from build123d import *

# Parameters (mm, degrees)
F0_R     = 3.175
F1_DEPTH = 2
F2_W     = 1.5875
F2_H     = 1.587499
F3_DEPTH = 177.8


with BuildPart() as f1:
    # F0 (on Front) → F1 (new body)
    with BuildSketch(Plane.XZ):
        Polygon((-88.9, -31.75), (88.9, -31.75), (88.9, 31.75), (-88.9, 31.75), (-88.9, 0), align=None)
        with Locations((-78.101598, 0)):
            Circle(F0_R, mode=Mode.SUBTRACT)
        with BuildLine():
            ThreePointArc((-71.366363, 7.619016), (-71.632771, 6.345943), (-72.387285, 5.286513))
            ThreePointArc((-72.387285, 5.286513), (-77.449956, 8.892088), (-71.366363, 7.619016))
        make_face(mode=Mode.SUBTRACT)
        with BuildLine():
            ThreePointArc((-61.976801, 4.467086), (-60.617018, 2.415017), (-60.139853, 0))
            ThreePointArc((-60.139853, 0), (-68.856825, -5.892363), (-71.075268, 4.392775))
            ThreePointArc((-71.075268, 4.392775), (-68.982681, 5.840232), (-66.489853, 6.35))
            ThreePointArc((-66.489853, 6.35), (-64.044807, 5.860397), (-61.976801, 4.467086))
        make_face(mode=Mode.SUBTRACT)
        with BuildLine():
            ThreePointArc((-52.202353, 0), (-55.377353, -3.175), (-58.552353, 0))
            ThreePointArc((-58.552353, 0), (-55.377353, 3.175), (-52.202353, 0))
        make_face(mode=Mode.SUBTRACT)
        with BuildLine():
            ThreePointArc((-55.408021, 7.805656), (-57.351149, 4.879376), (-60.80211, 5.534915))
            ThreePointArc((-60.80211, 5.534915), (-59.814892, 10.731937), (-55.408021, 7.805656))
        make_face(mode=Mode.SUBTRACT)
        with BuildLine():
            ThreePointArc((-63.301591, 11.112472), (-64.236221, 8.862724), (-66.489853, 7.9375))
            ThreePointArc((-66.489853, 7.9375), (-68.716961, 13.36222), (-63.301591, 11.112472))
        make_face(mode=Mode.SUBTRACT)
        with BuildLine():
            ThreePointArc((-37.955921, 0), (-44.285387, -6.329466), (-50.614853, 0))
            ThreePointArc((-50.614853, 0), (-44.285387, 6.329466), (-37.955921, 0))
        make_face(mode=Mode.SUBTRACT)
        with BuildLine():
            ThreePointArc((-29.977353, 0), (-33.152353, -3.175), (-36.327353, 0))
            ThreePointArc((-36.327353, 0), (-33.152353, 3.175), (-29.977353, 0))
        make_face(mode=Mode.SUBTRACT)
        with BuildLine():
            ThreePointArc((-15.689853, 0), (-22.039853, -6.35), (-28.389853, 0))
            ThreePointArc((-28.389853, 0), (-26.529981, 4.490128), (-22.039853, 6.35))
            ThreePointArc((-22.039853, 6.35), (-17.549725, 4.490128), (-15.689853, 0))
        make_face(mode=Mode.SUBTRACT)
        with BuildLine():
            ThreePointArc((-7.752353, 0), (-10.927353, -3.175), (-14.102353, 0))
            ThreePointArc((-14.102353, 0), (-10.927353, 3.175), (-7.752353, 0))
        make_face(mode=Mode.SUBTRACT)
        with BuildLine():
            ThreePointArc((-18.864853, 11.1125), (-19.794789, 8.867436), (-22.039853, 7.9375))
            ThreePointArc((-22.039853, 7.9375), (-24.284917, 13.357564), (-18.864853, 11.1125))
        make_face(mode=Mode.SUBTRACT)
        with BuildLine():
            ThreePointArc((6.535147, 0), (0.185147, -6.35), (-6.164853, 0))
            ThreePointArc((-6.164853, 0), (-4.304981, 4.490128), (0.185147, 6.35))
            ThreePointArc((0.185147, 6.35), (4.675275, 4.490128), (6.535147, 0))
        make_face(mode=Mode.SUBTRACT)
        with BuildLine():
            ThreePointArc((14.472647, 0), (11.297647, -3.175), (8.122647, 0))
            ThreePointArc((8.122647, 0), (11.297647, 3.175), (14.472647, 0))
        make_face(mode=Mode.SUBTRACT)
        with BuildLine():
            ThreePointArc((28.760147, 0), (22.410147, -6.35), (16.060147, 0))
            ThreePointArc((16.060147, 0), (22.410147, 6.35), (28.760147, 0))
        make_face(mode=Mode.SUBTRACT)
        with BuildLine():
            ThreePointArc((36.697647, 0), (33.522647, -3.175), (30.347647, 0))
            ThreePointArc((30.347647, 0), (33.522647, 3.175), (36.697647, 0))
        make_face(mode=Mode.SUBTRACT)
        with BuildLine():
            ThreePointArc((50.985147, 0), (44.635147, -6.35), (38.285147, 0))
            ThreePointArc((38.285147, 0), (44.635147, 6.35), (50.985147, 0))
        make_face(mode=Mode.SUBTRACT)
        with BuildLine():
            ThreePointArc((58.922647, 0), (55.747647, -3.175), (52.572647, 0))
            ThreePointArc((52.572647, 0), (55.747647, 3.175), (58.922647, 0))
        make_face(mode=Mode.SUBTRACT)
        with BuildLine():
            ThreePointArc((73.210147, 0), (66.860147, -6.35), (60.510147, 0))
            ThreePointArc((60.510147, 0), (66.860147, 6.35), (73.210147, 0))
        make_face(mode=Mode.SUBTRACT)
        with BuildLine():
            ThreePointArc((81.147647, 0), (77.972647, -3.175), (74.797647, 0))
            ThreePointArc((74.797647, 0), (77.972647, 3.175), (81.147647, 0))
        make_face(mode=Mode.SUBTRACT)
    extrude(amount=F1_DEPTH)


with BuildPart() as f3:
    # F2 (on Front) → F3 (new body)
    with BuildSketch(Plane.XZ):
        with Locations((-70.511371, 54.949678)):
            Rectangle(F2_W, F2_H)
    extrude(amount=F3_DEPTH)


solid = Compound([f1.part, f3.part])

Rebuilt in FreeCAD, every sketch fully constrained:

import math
import FreeCAD as App
import Part
import Sketcher
from FreeCAD import Vector
Q = App.Units.Quantity


def add_polygon(sketch, points):
    """Adds a closed chain of lines whose ends are joined by coincident constraints."""
    first, n = sketch.GeometryCount, len(points)
    for a, b in zip(points, points[1:] + points[:1]):
        sketch.addGeometry(Part.LineSegment(App.Vector(*a, 0), App.Vector(*b, 0)), False)
    for i in range(n):
        sketch.addConstraint(Sketcher.Constraint("Coincident", first + i, 2, first + (i + 1) % n, 1))

doc = App.newDocument("Part")
body = doc.addObject("PartDesign::Body", "Body")

# Sketch on XZ plane
sketch1 = doc.addObject("Sketcher::SketchObject", "Sketch")
body.addObject(sketch1)
sketch1.AttachmentSupport = (doc.XZ_Plane, [""])
sketch1.MapMode = "FlatFace"
add_polygon(sketch1, [(-88.9, -31.75), (88.9, -31.75), (88.9, 31.75), (-88.9, 31.75)])  # lines 0-3
sketch1.addGeometry(Part.Circle(Vector(-78.101598, 0, 0), Vector(0, 0, 1), 3.175), False)  # 4
sketch1.addGeometry(Part.ArcOfCircle(Part.Circle(Vector(-66.489851, 0.000005, 0), Vector(0, 0, 1), 6.349995), math.radians(44.706705), math.radians(90.000014)), False)  # 5
sketch1.addGeometry(Part.ArcOfCircle(Part.Circle(Vector(-66.489853, 0, 0), Vector(0, 0, 1), 6.35), math.radians(0.000003), math.radians(44.706731)), False)  # 6
sketch1.addGeometry(Part.ArcOfCircle(Part.Circle(Vector(-66.489853, 0, 0), Vector(0, 0, 1), 6.35), math.radians(136.229176), math.radians(359.999998)), False)  # 7
sketch1.addGeometry(Part.ArcOfCircle(Part.Circle(Vector(-66.489853, 0, 0), Vector(0, 0, 1), 6.35), math.radians(89.999998), math.radians(136.229172)), False)  # 8
sketch1.addGeometry(Part.Circle(Vector(-55.377353, 0, 0), Vector(0, 0, 1), 3.175), False)  # 9
sketch1.addGeometry(Part.Circle(Vector(-44.285387, 0, 0), Vector(0, 0, 1), 6.329466), False)  # 10
sketch1.addGeometry(Part.Circle(Vector(-33.152353, 0, 0), Vector(0, 0, 1), 3.175), False)  # 11
sketch1.addGeometry(Part.ArcOfCircle(Part.Circle(Vector(-22.039853, 0, 0), Vector(0, 0, 1), 6.35), math.radians(0.000002), math.radians(89.999998)), False)  # 12
sketch1.addGeometry(Part.ArcOfCircle(Part.Circle(Vector(-22.039853, 0, 0), Vector(0, 0, 1), 6.35), math.radians(180), math.radians(360)), False)  # 13
sketch1.addGeometry(Part.ArcOfCircle(Part.Circle(Vector(-22.039853, 0, 0), Vector(0, 0, 1), 6.35), math.radians(90.000002), math.radians(179.999998)), False)  # 14
sketch1.addGeometry(Part.Circle(Vector(-10.927353, 0, 0), Vector(0, 0, 1), 3.175), False)  # 15
sketch1.addGeometry(Part.ArcOfCircle(Part.Circle(Vector(0.185147, 0, 0), Vector(0, 0, 1), 6.35), math.radians(0.000002), math.radians(89.999998)), False)  # 16
sketch1.addGeometry(Part.ArcOfCircle(Part.Circle(Vector(0.185147, 0, 0), Vector(0, 0, 1), 6.35), math.radians(180), math.radians(360)), False)  # 17
sketch1.addGeometry(Part.ArcOfCircle(Part.Circle(Vector(0.185147, 0, 0), Vector(0, 0, 1), 6.35), math.radians(90.000002), math.radians(179.999998)), False)  # 18
sketch1.addGeometry(Part.Circle(Vector(11.297647, 0, 0), Vector(0, 0, 1), 3.175), False)  # 19
sketch1.addGeometry(Part.Circle(Vector(22.410147, 0, 0), Vector(0, 0, 1), 6.35), False)  # 20
sketch1.addGeometry(Part.Circle(Vector(33.522647, 0, 0), Vector(0, 0, 1), 3.175), False)  # 21
sketch1.addGeometry(Part.Circle(Vector(44.635147, 0, 0), Vector(0, 0, 1), 6.35), False)  # 22
sketch1.addGeometry(Part.Circle(Vector(55.747647, 0, 0), Vector(0, 0, 1), 3.175), False)  # 23
sketch1.addGeometry(Part.Circle(Vector(66.860147, 0, 0), Vector(0, 0, 1), 6.35), False)  # 24
sketch1.addGeometry(Part.Circle(Vector(77.972647, 0, 0), Vector(0, 0, 1), 3.175), False)  # 25
sketch1.addGeometry(Part.ArcOfCircle(Part.Circle(Vector(-74.541363, 7.619017, 0), Vector(0, 0, 1), 3.175), math.radians(-0.00001), math.radians(312.72262)), False)  # 26
sketch1.addGeometry(Part.ArcOfCircle(Part.Circle(Vector(-74.541365, 7.619018, 0), Vector(0, 0, 1), 3.175002), math.radians(-47.277363), math.radians(-0.000027)), False)  # 27
sketch1.addGeometry(Part.ArcOfCircle(Part.Circle(Vector(-58.583021, 7.805657, 0), Vector(0, 0, 1), 3.175), math.radians(-0.00001), math.radians(225.659119)), False)  # 28
sketch1.addGeometry(Part.ArcOfCircle(Part.Circle(Vector(-58.583021, 7.805656, 0), Vector(0, 0, 1), 3.175), math.radians(-134.34089), math.radians(-0.000001)), False)  # 29
sketch1.addGeometry(Part.ArcOfCircle(Part.Circle(Vector(-66.476591, 11.112472, 0), Vector(0, 0, 1), 3.175), math.radians(-0.000002), math.radians(269.760671)), False)  # 30
sketch1.addGeometry(Part.ArcOfCircle(Part.Circle(Vector(-66.476591, 11.112472, 0), Vector(0, 0, 1), 3.175), math.radians(-90.239327), math.radians(-0.000004)), False)  # 31
sketch1.addGeometry(Part.ArcOfCircle(Part.Circle(Vector(-22.039853, 11.1125, 0), Vector(0, 0, 1), 3.175), math.radians(0), math.radians(270)), False)  # 32
sketch1.addGeometry(Part.ArcOfCircle(Part.Circle(Vector(-22.039853, 11.1125, 0), Vector(0, 0, 1), 3.175), math.radians(-89.999998), math.radians(-0.000002)), False)  # 33
sketch1.addConstraint(Sketcher.Constraint("Tangent", 5, 1, 6, 2))
sketch1.addConstraint(Sketcher.Constraint("Tangent", 6, 1, 7, 2))
sketch1.addConstraint(Sketcher.Constraint("Tangent", 7, 1, 8, 2))
sketch1.addConstraint(Sketcher.Constraint("Tangent", 8, 1, 5, 2))
sketch1.addConstraint(Sketcher.Constraint("Tangent", 12, 1, 13, 2))
sketch1.addConstraint(Sketcher.Constraint("Tangent", 13, 1, 14, 2))
sketch1.addConstraint(Sketcher.Constraint("Tangent", 14, 1, 12, 2))
sketch1.addConstraint(Sketcher.Constraint("Tangent", 16, 1, 17, 2))
sketch1.addConstraint(Sketcher.Constraint("Tangent", 17, 1, 18, 2))
sketch1.addConstraint(Sketcher.Constraint("Tangent", 18, 1, 16, 2))
sketch1.addConstraint(Sketcher.Constraint("Tangent", 26, 1, 27, 2))
sketch1.addConstraint(Sketcher.Constraint("Coincident", 27, 1, 26, 2))
sketch1.addConstraint(Sketcher.Constraint("Tangent", 28, 1, 29, 2))
sketch1.addConstraint(Sketcher.Constraint("Coincident", 29, 1, 28, 2))
sketch1.addConstraint(Sketcher.Constraint("Tangent", 30, 1, 31, 2))
sketch1.addConstraint(Sketcher.Constraint("Coincident", 31, 1, 30, 2))
sketch1.addConstraint(Sketcher.Constraint("Tangent", 32, 1, 33, 2))
sketch1.addConstraint(Sketcher.Constraint("Coincident", 33, 1, 32, 2))
sketch1.addConstraint(Sketcher.Constraint("Horizontal", 0))
sketch1.addConstraint(Sketcher.Constraint("Vertical", 1))
sketch1.addConstraint(Sketcher.Constraint("Horizontal", 2))
sketch1.addConstraint(Sketcher.Constraint("Vertical", 3))
sketch1.addConstraint(Sketcher.Constraint("Equal", 6, 7))
sketch1.addConstraint(Sketcher.Constraint("Equal", 4, 9))
sketch1.addConstraint(Sketcher.Constraint("Equal", 9, 11))
sketch1.addConstraint(Sketcher.Constraint("Equal", 8, 12))
sketch1.addConstraint(Sketcher.Constraint("Equal", 11, 15))
sketch1.addConstraint(Sketcher.Constraint("Equal", 14, 16))
sketch1.addConstraint(Sketcher.Constraint("Equal", 15, 19))
sketch1.addConstraint(Sketcher.Constraint("Equal", 18, 20))
sketch1.addConstraint(Sketcher.Constraint("Equal", 19, 21))
sketch1.addConstraint(Sketcher.Constraint("Equal", 20, 22))
sketch1.addConstraint(Sketcher.Constraint("Equal", 21, 23))
sketch1.addConstraint(Sketcher.Constraint("Equal", 22, 24))
sketch1.addConstraint(Sketcher.Constraint("Equal", 23, 25))
sketch1.addConstraint(Sketcher.Constraint("Equal", 25, 26))
sketch1.addConstraint(Sketcher.Constraint("Equal", 26, 28))
sketch1.addConstraint(Sketcher.Constraint("Equal", 29, 30))
sketch1.addConstraint(Sketcher.Constraint("Equal", 31, 32))
sketch1.addConstraint(Sketcher.Constraint("Symmetric", 0, 2, 2, 2, -1, 1))
sketch1.addConstraint(Sketcher.Constraint("PointOnObject", 4, 3, -1))
sketch1.addConstraint(Sketcher.Constraint("PointOnObject", 6, 3, -1))
sketch1.addConstraint(Sketcher.Constraint("PointOnObject", 9, 3, -1))
sketch1.addConstraint(Sketcher.Constraint("PointOnObject", 10, 3, -1))
sketch1.addConstraint(Sketcher.Constraint("PointOnObject", 11, 3, -1))
sketch1.addConstraint(Sketcher.Constraint("PointOnObject", 12, 3, -1))
sketch1.addConstraint(Sketcher.Constraint("PointOnObject", 15, 3, -1))
sketch1.addConstraint(Sketcher.Constraint("PointOnObject", 16, 3, -1))
sketch1.addConstraint(Sketcher.Constraint("PointOnObject", 19, 3, -1))
sketch1.addConstraint(Sketcher.Constraint("PointOnObject", 20, 3, -1))
sketch1.addConstraint(Sketcher.Constraint("PointOnObject", 21, 3, -1))
sketch1.addConstraint(Sketcher.Constraint("PointOnObject", 22, 3, -1))
sketch1.addConstraint(Sketcher.Constraint("PointOnObject", 23, 3, -1))
sketch1.addConstraint(Sketcher.Constraint("PointOnObject", 24, 3, -1))
sketch1.addConstraint(Sketcher.Constraint("PointOnObject", 25, 3, -1))
sketch1.addConstraint(Sketcher.Constraint("PointOnObject", 6, 1, -1))
sketch1.addConstraint(Sketcher.Constraint("PointOnObject", 12, 1, -1))
sketch1.addConstraint(Sketcher.Constraint("PointOnObject", 13, 1, -1))
sketch1.addConstraint(Sketcher.Constraint("PointOnObject", 16, 1, -1))
sketch1.addConstraint(Sketcher.Constraint("PointOnObject", 17, 1, -1))
sketch1.addConstraint(Sketcher.Constraint("Horizontal", 27, 3, 26, 1))
sketch1.addConstraint(Sketcher.Constraint("Horizontal", 29, 3, 28, 1))
sketch1.addConstraint(Sketcher.Constraint("Horizontal", 31, 3, 30, 1))
sketch1.addConstraint(Sketcher.Constraint("Horizontal", 33, 3, 32, 1))
sketch1.addConstraint(Sketcher.Constraint("Horizontal", 31, 1, 33, 1))
sketch1.addConstraint(Sketcher.Constraint("Vertical", 14, 3, 32, 3))
sketch1.addConstraint(Sketcher.Constraint("Vertical", 7, 3, 8, 1))
sketch1.addConstraint(Sketcher.Constraint("Vertical", 33, 3, 14, 1))
sketch1.addConstraint(Sketcher.Constraint("Vertical", 17, 3, 18, 1))
sketch1.addConstraint(Sketcher.Constraint("Vertical", 8, 1, 31, 1))
sketch1.addConstraint(Sketcher.Constraint("Vertical", 14, 1, 33, 1))
sketch1.addConstraint(Sketcher.Constraint("Diameter", 20, Q("0.5 in")))
sketch1.addConstraint(Sketcher.Constraint("Diameter", 4, Q("0.25 in")))
sketch1.addConstraint(Sketcher.Constraint("DistanceX", 0, 1, 0, 2, Q("7 in")))
sketch1.addConstraint(Sketcher.Constraint("DistanceY", 1, 1, 1, 2, Q("2.5 in")))
sketch1.addConstraint(Sketcher.Constraint("DistanceX", 5, 3, 12, 3, Q("1.7499999 in")))
sketch1.addConstraint(Sketcher.Constraint("DistanceX", 18, 3, 22, 3, Q("1.75 in")))
sketch1.addConstraint(Sketcher.Constraint("DistanceX", 19, 3, 23, 3, Q("1.75 in")))
sketch1.addConstraint(Sketcher.Constraint("DistanceX", 20, 3, 24, 3, Q("1.75 in")))
sketch1.addConstraint(Sketcher.Constraint("DistanceX", 21, 3, 25, 3, Q("1.75 in")))
sketch1.addConstraint(Sketcher.Constraint("DistanceY", -1, 1, 32, 3, Q("0.4375 in")))
sketch1.addConstraint(Sketcher.Constraint("DistanceX", 5, 3, 9, 3, Q("0.4374999 in")))
sketch1.addConstraint(Sketcher.Constraint("DistanceX", 9, 3, 11, 3, Q("0.875 in")))
sketch1.addConstraint(Sketcher.Constraint("DistanceX", 14, 3, 15, 3, Q("0.4375 in")))
sketch1.addConstraint(Sketcher.Constraint("DistanceX", 15, 3, 16, 3, Q("0.4375 in")))
sketch1.addConstraint(Sketcher.Constraint("DistanceX", 18, 3, 19, 3, Q("0.4375 in")))
sketch1.addConstraint(Sketcher.Constraint("DistanceX", 19, 3, 20, 3, Q("0.4375 in")))
sketch1.addConstraint(Sketcher.Constraint("DistanceX", 20, 3, 21, 3, Q("0.4375 in")))
sketch1.addConstraint(Sketcher.Constraint("Diameter", 10, 12.658932))
sketch1.addConstraint(Sketcher.Constraint("DistanceX", 5, 1, -1, 1, 61.976801))
sketch1.addConstraint(Sketcher.Constraint("DistanceX", 5, 3, -1, 1, 66.489851))
sketch1.addConstraint(Sketcher.Constraint("DistanceX", 28, 3, -1, 1, 58.583021))
sketch1.addConstraint(Sketcher.Constraint("DistanceX", 30, 3, -1, 1, 66.476591))
sketch1.addConstraint(Sketcher.Constraint("DistanceX", 7, 1, -1, 1, 71.075268))
sketch1.addConstraint(Sketcher.Constraint("DistanceX", 29, 1, -1, 1, 60.80211))
sketch1.addConstraint(Sketcher.Constraint("DistanceX", 26, 3, 5, 3, 8.051512))
sketch1.addConstraint(Sketcher.Constraint("DistanceY", 5, 3, 26, 3, 7.619012))
sketch1.addConstraint(Sketcher.Constraint("DistanceY", 5, 3, 28, 3, 7.805652))
sketch1.addConstraint(Sketcher.Constraint("DistanceX", 27, 1, 26, 1, 1.020922))
sketch1.addConstraint(Sketcher.Constraint("DistanceX", 4, 3, -1, 1, 78.101598))
sketch1.addConstraint(Sketcher.Constraint("DistanceX", 10, 3, -1, 1, 44.285387))
pad1 = doc.addObject("PartDesign::Pad", "Pad")
body.addObject(pad1)
pad1.Profile = sketch1
pad1.Length = 2
body2 = doc.addObject("PartDesign::Body", "Body001")

# Sketch on XZ plane
sketch2 = doc.addObject("Sketcher::SketchObject", "Sketch001")
body2.addObject(sketch2)
sketch2.AttachmentSupport = (doc.getObject("XZ_Plane001"), [""])
sketch2.MapMode = "FlatFace"
add_polygon(sketch2, [(-71.305121, 55.743428), (-71.305121, 54.155929), (-69.717621, 54.155929), (-69.717621, 55.743428)])  # lines 0-3
sketch2.addConstraint(Sketcher.Constraint("Vertical", 0))
sketch2.addConstraint(Sketcher.Constraint("Horizontal", 1))
sketch2.addConstraint(Sketcher.Constraint("Vertical", 2))
sketch2.addConstraint(Sketcher.Constraint("Horizontal", 3))
sketch2.addConstraint(Sketcher.Constraint("Equal", 3, 0))
sketch2.addConstraint(Sketcher.Constraint("DistanceX", 1, 1, 1, 2, Q("0.0625 in")))
sketch2.addConstraint(Sketcher.Constraint("DistanceX", 0, 2, -1, 1, 71.305121))
sketch2.addConstraint(Sketcher.Constraint("DistanceY", -1, 1, 0, 2, 54.155929))
pad2 = doc.addObject("PartDesign::Pad", "Pad001")
body2.addObject(pad2)
pad2.Profile = sketch2
pad2.Length = Q("7 in")

doc.recompute()
